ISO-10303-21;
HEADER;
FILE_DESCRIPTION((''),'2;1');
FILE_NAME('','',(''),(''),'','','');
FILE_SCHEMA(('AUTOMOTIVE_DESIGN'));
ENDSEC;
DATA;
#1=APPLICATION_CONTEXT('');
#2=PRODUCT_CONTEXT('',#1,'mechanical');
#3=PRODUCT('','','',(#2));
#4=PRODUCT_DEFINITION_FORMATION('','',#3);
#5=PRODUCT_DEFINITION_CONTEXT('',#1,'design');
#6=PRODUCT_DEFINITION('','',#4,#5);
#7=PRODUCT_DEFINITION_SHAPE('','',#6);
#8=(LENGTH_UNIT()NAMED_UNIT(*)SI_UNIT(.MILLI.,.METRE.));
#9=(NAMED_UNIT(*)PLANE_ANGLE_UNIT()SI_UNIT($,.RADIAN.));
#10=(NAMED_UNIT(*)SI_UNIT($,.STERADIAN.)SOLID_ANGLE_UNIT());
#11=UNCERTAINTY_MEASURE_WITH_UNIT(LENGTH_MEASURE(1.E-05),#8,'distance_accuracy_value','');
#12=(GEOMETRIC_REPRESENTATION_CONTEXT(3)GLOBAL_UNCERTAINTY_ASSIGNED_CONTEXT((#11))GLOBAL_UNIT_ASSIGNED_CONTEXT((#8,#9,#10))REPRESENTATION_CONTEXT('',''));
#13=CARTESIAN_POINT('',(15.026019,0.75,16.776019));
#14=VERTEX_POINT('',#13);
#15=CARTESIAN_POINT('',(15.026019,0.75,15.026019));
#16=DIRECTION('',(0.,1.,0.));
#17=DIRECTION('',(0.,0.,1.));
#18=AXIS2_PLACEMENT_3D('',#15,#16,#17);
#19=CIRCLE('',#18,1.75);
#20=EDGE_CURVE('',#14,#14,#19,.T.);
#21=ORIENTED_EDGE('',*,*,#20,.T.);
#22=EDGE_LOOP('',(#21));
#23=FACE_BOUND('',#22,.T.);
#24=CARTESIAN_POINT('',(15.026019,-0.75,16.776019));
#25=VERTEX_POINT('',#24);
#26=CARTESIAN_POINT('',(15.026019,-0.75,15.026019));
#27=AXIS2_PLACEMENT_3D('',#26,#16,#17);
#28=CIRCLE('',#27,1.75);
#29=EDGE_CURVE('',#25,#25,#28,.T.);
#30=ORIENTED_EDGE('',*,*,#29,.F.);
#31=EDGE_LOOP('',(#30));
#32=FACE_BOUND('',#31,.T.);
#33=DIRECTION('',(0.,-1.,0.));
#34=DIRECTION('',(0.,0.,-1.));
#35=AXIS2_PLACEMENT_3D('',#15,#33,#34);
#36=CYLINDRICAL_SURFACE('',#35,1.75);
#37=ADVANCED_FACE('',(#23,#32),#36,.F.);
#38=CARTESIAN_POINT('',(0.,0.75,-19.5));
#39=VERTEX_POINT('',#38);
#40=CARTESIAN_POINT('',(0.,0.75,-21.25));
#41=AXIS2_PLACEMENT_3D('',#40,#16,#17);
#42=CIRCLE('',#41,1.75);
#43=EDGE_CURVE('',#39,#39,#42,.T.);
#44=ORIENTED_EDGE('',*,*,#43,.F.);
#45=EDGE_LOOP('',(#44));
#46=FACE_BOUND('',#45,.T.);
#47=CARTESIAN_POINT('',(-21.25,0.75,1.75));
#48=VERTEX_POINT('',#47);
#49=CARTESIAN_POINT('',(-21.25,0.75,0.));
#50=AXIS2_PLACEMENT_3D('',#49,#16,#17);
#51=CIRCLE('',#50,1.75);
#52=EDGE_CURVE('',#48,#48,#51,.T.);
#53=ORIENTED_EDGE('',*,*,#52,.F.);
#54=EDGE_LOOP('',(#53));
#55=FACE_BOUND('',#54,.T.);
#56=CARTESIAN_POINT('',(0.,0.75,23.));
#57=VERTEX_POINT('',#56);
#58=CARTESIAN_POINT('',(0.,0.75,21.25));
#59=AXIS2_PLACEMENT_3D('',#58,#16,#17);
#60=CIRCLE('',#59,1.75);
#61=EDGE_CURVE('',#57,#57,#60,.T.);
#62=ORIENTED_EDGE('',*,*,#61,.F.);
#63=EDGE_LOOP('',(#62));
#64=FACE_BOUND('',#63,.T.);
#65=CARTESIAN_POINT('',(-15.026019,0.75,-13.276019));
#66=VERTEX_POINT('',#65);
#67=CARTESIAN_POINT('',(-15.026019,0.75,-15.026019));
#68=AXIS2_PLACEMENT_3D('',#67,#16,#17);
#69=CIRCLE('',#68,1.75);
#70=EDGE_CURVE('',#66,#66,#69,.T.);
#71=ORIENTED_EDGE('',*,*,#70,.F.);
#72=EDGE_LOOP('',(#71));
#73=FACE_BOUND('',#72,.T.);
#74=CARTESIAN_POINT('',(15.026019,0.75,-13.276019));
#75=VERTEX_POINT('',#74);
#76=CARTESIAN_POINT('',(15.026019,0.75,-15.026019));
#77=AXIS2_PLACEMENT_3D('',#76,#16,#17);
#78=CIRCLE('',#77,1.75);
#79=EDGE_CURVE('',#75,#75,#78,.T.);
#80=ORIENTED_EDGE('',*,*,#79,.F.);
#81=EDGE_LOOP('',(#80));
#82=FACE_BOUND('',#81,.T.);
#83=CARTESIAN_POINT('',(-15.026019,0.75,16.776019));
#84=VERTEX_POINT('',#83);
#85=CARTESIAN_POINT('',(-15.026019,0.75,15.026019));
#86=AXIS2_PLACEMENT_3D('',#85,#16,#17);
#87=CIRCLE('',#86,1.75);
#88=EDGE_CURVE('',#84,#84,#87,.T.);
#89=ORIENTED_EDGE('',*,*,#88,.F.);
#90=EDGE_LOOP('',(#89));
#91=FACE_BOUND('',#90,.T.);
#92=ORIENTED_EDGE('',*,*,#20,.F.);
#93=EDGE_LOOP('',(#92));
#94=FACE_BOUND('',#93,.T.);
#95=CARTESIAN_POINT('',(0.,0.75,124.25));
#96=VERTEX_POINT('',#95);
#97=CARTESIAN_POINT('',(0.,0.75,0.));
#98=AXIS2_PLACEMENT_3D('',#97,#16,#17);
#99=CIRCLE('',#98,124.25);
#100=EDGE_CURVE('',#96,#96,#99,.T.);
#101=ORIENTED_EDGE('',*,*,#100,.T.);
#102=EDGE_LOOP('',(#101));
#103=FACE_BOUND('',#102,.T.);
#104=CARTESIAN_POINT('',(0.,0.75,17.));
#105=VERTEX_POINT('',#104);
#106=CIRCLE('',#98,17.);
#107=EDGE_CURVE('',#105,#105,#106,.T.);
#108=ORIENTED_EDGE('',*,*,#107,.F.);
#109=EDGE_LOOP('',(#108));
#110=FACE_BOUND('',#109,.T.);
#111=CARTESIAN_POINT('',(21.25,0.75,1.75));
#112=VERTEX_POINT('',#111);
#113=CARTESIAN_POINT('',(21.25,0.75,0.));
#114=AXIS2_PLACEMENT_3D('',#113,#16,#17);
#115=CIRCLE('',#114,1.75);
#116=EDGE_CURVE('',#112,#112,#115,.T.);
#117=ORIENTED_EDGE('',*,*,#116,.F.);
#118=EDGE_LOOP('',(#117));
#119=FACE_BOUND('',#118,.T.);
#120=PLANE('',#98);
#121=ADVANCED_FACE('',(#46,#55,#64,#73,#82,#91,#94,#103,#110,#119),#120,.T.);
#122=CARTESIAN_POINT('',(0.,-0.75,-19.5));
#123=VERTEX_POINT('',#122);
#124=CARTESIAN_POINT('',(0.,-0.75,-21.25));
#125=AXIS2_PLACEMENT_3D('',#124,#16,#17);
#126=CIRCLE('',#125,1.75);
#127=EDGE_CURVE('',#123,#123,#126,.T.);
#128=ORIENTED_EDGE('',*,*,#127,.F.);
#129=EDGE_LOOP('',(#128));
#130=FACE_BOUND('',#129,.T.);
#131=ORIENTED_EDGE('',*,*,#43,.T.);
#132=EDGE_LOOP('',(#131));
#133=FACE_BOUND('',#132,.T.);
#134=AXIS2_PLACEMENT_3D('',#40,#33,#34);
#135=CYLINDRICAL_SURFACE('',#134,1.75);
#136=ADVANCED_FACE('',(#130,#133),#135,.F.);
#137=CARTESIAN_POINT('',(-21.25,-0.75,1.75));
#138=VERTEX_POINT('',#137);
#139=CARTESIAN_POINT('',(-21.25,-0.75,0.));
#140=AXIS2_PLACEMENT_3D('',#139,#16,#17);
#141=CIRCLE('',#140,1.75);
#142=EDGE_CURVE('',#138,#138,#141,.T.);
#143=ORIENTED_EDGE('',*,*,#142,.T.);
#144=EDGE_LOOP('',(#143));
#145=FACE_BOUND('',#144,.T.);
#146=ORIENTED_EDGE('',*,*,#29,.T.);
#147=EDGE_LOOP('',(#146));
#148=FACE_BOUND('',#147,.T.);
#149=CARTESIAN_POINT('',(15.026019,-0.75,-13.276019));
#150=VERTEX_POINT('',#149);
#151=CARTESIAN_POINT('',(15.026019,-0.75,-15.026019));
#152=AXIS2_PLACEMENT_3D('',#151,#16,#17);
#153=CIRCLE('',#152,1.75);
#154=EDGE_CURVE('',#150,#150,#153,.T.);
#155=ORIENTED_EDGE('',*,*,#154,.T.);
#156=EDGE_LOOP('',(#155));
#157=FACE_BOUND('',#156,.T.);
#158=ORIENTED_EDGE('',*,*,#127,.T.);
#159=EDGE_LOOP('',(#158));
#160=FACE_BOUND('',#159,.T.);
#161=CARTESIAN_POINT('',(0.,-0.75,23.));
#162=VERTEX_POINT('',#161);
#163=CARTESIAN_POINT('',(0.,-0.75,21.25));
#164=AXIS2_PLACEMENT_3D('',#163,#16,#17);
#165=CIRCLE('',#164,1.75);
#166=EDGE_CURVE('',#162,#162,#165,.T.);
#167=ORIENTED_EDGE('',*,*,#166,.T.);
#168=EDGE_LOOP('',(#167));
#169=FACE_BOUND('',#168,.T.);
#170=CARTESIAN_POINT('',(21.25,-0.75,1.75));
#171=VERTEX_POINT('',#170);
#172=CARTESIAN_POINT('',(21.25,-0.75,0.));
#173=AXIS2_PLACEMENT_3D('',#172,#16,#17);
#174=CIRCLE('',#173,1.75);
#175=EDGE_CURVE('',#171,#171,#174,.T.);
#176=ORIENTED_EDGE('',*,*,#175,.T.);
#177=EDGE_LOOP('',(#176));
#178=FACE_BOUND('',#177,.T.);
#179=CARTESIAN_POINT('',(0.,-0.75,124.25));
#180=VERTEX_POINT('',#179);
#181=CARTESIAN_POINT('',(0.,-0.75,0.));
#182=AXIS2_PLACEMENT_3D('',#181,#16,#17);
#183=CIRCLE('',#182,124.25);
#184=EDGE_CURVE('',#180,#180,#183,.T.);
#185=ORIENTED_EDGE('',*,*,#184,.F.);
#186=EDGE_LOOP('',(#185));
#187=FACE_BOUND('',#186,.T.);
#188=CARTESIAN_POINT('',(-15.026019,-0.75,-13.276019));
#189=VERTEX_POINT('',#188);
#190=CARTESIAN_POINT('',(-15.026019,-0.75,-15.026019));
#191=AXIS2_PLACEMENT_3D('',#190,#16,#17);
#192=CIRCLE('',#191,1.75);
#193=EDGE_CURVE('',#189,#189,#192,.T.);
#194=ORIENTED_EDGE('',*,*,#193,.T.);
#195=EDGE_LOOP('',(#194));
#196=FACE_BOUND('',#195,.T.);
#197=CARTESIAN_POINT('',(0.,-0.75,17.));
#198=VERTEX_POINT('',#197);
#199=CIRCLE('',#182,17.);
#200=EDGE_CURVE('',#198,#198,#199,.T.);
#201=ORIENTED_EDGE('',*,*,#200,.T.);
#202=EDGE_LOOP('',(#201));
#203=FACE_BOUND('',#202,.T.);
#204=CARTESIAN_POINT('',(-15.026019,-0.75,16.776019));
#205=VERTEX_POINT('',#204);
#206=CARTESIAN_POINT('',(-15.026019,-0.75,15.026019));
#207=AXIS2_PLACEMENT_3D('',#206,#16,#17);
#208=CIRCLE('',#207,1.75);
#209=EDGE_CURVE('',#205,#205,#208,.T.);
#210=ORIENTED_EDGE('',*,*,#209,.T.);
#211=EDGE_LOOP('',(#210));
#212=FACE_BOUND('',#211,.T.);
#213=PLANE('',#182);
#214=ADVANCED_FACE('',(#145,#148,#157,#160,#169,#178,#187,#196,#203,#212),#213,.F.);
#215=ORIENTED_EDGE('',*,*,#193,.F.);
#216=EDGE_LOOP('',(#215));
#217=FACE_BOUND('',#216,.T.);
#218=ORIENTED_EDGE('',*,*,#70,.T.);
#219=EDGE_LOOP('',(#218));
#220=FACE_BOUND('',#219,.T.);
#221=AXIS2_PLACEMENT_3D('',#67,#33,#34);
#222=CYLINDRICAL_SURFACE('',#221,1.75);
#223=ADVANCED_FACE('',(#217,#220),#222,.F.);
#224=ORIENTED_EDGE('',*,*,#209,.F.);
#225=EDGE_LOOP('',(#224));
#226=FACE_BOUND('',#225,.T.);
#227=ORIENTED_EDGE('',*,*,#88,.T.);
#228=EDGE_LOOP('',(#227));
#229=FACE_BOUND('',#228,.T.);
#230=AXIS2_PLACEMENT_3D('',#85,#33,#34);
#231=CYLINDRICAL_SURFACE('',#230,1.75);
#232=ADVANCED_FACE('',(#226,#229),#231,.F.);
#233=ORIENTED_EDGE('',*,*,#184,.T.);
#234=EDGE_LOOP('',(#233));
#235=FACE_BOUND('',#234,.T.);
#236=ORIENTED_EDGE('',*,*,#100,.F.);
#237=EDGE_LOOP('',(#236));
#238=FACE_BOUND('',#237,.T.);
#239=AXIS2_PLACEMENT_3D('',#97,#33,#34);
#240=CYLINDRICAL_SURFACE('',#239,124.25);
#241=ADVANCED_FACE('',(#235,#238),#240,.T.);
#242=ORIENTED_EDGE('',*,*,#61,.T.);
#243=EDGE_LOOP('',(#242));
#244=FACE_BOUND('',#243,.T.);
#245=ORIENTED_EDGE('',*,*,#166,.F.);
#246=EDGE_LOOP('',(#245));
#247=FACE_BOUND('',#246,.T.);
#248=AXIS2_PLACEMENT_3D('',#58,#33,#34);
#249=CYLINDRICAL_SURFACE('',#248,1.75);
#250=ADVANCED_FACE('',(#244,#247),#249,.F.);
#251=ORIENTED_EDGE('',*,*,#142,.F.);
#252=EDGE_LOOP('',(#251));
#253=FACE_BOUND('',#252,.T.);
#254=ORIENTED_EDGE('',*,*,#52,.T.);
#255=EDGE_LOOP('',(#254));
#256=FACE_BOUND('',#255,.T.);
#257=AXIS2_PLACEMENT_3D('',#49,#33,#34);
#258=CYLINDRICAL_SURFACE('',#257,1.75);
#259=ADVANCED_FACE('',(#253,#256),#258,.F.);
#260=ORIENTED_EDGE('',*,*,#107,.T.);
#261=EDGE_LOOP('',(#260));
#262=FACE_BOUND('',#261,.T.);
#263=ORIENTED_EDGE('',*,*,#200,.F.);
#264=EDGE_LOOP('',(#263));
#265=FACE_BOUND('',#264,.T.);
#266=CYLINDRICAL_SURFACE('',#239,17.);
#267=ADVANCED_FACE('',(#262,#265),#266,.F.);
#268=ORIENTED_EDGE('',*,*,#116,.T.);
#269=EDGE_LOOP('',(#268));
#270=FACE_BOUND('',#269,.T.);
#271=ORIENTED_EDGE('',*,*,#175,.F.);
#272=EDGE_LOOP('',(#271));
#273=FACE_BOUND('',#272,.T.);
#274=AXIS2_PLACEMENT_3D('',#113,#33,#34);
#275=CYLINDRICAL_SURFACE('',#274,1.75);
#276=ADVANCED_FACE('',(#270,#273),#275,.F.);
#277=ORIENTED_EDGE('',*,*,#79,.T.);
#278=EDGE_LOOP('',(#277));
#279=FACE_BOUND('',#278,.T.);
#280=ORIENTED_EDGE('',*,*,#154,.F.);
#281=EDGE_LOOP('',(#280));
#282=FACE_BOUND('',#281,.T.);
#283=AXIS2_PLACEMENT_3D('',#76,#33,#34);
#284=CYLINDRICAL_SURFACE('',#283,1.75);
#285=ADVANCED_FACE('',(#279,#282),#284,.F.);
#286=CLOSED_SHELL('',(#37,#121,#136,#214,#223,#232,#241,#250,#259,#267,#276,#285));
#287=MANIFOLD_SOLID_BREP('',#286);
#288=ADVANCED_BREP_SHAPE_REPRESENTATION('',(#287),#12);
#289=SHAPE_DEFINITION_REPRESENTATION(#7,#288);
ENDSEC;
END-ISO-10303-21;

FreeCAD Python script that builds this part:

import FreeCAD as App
import Part
import Sketcher

V = App.Vector
Q = App.Units.Quantity

doc = App.newDocument("Part")
body = doc.addObject("PartDesign::Body", "Body")

# Sketch on XZ plane
sketch1 = body.newObject("Sketcher::SketchObject", "Sketch")
sketch1.AttachmentSupport = (doc.getObject("XZ_Plane"), [""])
sketch1.MapMode = "FlatFace"
sketch1.addGeometry(Part.Circle(V(0, 0, 0), V(0, 0, 1), 124.2), False)
sketch1.addGeometry(Part.Circle(V(-15, -15, 0), V(0, 0, 1), 1.8), False)
sketch1.addGeometry(Part.Circle(V(0, -21.2, 0), V(0, 0, 1), 1.8), False)
sketch1.addGeometry(Part.Circle(V(-21.2, 0, 0), V(0, 0, 1), 1.8), False)
sketch1.addGeometry(Part.Circle(V(-15, 15, 0), V(0, 0, 1), 1.8), False)
sketch1.addGeometry(Part.Circle(V(15, -15, 0), V(0, 0, 1), 1.8), False)
sketch1.addGeometry(Part.Circle(V(21.2, 0, 0), V(0, 0, 1), 1.8), False)
sketch1.addGeometry(Part.Circle(V(0, 0, 0), V(0, 0, 1), 17), False)
sketch1.addGeometry(Part.Circle(V(0, 21.2, 0), V(0, 0, 1), 1.8), False)
sketch1.addGeometry(Part.Circle(V(15, 15, 0), V(0, 0, 1), 1.8), False)
sketch1.addConstraint(Sketcher.Constraint("Coincident", 0, 3, -1, 1))
sketch1.addConstraint(Sketcher.Constraint("Coincident", 7, 3, -1, 1))
sketch1.addConstraint(Sketcher.Constraint("Equal", 1, 2))
sketch1.addConstraint(Sketcher.Constraint("Equal", 2, 3))
sketch1.addConstraint(Sketcher.Constraint("Equal", 3, 4))
sketch1.addConstraint(Sketcher.Constraint("Equal", 4, 5))
sketch1.addConstraint(Sketcher.Constraint("Equal", 5, 6))
sketch1.addConstraint(Sketcher.Constraint("Equal", 6, 8))
sketch1.addConstraint(Sketcher.Constraint("Equal", 8, 9))
sketch1.addConstraint(Sketcher.Constraint("Symmetric", 4, 3, 5, 3, -1, 1))
sketch1.addConstraint(Sketcher.Constraint("Symmetric", 3, 3, 6, 3, -1, 1))
sketch1.addConstraint(Sketcher.Constraint("Symmetric", 2, 3, 8, 3, -1, 1))
sketch1.addConstraint(Sketcher.Constraint("Symmetric", 1, 3, 9, 3, -1, 1))
sketch1.addConstraint(Sketcher.Constraint("Symmetric", 1, 3, 5, 3, -2))
sketch1.addConstraint(Sketcher.Constraint("PointOnObject", 2, 3, -2))
sketch1.addConstraint(Sketcher.Constraint("PointOnObject", 3, 3, -1))
sketch1.addConstraint(Sketcher.Constraint("Diameter", 7, Q("34 mm")))
sketch1.addConstraint(Sketcher.Constraint("Diameter", 0, Q("248.5 mm")))
sketch1.addConstraint(Sketcher.Constraint("Diameter", 1, Q("3.5 mm")))
sketch1.addConstraint(Sketcher.Constraint("DistanceY", 2, 3, -1, 1, Q("21.25 mm")))
sketch1.addConstraint(Sketcher.Constraint("DistanceX", 3, 3, -1, 1, Q("21.25 mm")))
sketch1.addConstraint(Sketcher.Constraint("DistanceX", 1, 3, -1, 1, Q("15.026019 mm")))
sketch1.addConstraint(Sketcher.Constraint("DistanceY", 1, 3, -1, 1, Q("15.026019 mm")))
pad1 = body.newObject("PartDesign::Pad", "Pad")
pad1.Profile = sketch1
pad1.Length = 1.5
pad1.Midplane = True

doc.recompute()
